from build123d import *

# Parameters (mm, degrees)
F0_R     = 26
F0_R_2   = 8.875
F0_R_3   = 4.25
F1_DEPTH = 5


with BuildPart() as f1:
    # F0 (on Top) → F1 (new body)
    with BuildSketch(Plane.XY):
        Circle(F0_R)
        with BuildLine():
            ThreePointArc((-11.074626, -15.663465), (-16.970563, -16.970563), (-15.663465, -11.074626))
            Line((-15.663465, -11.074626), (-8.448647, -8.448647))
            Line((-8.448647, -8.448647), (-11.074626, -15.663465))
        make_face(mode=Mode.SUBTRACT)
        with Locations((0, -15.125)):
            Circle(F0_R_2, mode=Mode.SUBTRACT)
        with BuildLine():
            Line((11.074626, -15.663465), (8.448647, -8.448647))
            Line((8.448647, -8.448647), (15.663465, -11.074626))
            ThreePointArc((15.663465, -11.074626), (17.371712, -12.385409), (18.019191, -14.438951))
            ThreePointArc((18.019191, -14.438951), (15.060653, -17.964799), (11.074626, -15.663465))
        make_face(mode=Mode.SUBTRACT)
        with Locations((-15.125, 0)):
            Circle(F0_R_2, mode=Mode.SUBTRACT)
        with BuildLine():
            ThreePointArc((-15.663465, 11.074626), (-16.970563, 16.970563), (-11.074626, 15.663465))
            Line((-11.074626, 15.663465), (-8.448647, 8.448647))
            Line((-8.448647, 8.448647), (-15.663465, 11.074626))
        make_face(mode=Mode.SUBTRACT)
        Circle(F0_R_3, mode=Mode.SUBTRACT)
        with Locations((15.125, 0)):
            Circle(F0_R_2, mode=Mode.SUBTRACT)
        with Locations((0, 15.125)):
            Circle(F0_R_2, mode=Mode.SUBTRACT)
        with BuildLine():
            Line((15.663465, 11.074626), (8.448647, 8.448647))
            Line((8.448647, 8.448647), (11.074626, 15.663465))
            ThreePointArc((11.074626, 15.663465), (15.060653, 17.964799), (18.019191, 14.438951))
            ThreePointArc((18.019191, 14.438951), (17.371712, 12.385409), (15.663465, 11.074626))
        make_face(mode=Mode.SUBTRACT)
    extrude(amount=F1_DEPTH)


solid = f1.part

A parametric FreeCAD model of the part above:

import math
import FreeCAD as App
import Part
import Sketcher
Q = App.Units.Quantity

doc = App.newDocument("Part")
body = doc.addObject("PartDesign::Body", "Body")

# Sketch on XY plane
sketch1 = doc.addObject("Sketcher::SketchObject", "Sketch")
body.addObject(sketch1)
sketch1.AttachmentSupport = (doc.XY_Plane, [""])
sketch1.MapMode = "FlatFace"
sketch1.addGeometry([
    Part.Circle(App.Vector(0, 0, 0), App.Vector(0, 0, 1), 26),  # 0
    Part.LineSegment(App.Vector(-8.4, -8.4, 0), App.Vector(-11.1, -15.7, 0)),  # 1
    Part.ArcOfCircle(Part.Circle(App.Vector(-14.4, -14.4, 0), App.Vector(0, 0, 1), 3.6), math.radians(110), math.radians(340)),  # 2
    Part.LineSegment(App.Vector(-15.7, -11.1, 0), App.Vector(-8.4, -8.4, 0)),  # 3
    Part.Circle(App.Vector(0, -15.1, 0), App.Vector(0, 0, 1), 8.9),  # 4
    Part.ArcOfCircle(Part.Circle(App.Vector(14.4, -14.4, 0), App.Vector(0, 0, 1), 3.6), math.radians(-160), math.radians(0)),  # 5
    Part.LineSegment(App.Vector(11.1, -15.7, 0), App.Vector(8.4, -8.4, 0)),  # 6
    Part.LineSegment(App.Vector(8.4, -8.4, 0), App.Vector(15.7, -11.1, 0)),  # 7
    Part.ArcOfCircle(Part.Circle(App.Vector(14.4, -14.4, 0), App.Vector(0, 0, 1), 3.6), math.radians(0), math.radians(70)),  # 8
    Part.Circle(App.Vector(0, 0, 0), App.Vector(0, 0, 1), 4.2),  # 9
    Part.Circle(App.Vector(-15.1, 0, 0), App.Vector(0, 0, 1), 8.9),  # 10
    Part.LineSegment(App.Vector(-8.4, 8.4, 0), App.Vector(-15.7, 11.1, 0)),  # 11
    Part.ArcOfCircle(Part.Circle(App.Vector(-14.4, 14.4, 0), App.Vector(0, 0, 1), 3.6), math.radians(20), math.radians(250)),  # 12
    Part.LineSegment(App.Vector(-11.1, 15.7, 0), App.Vector(-8.4, 8.4, 0)),  # 13
    Part.Circle(App.Vector(15.1, 0, 0), App.Vector(0, 0, 1), 8.9),  # 14
    Part.Circle(App.Vector(0, 15.1, 0), App.Vector(0, 0, 1), 8.9),  # 15
    Part.ArcOfCircle(Part.Circle(App.Vector(14.4, 14.4, 0), App.Vector(0, 0, 1), 3.6), math.radians(-70), math.radians(0)),  # 16
    Part.LineSegment(App.Vector(15.7, 11.1, 0), App.Vector(8.4, 8.4, 0)),  # 17
    Part.LineSegment(App.Vector(8.4, 8.4, 0), App.Vector(11.1, 15.7, 0)),  # 18
    Part.ArcOfCircle(Part.Circle(App.Vector(14.4, 14.4, 0), App.Vector(0, 0, 1), 3.6), math.radians(0), math.radians(160)),  # 19
], False)
sketch1.addConstraint([
    Sketcher.Constraint("Tangent", 1, 2, 2, 2),
    Sketcher.Constraint("Tangent", 2, 1, 3, 1),
    Sketcher.Constraint("Coincident", 3, 2, 1, 1),
    Sketcher.Constraint("Tangent", 5, 1, 6, 1),
    Sketcher.Constraint("Coincident", 6, 2, 7, 1),
    Sketcher.Constraint("Tangent", 7, 2, 8, 2),
    Sketcher.Constraint("Tangent", 8, 1, 5, 2),
    Sketcher.Constraint("Tangent", 11, 2, 12, 2),
    Sketcher.Constraint("Tangent", 12, 1, 13, 1),
    Sketcher.Constraint("Coincident", 13, 2, 11, 1),
    Sketcher.Constraint("Tangent", 16, 1, 17, 1),
    Sketcher.Constraint("Coincident", 17, 2, 18, 1),
    Sketcher.Constraint("Tangent", 18, 2, 19, 2),
    Sketcher.Constraint("Tangent", 19, 1, 16, 2),
    Sketcher.Constraint("Coincident", 0, 3, -1, 1),
    Sketcher.Constraint("Coincident", 9, 3, -1, 1),
    Sketcher.Constraint("Equal", 2, 5),
    Sketcher.Constraint("Equal", 4, 10),
    Sketcher.Constraint("Equal", 5, 12),
    Sketcher.Constraint("Equal", 10, 14),
    Sketcher.Constraint("Equal", 14, 15),
    Sketcher.Constraint("Equal", 8, 16),
    Sketcher.Constraint("Equal", 12, 19),
    Sketcher.Constraint("Symmetric", 5, 3, 12, 3, -1, 1),
    Sketcher.Constraint("Symmetric", 10, 3, 14, 3, -1, 1),
    Sketcher.Constraint("Symmetric", 4, 3, 15, 3, -1, 1),
    Sketcher.Constraint("Symmetric", 2, 3, 16, 3, -1, 1),
    Sketcher.Constraint("Symmetric", 7, 2, 11, 2, -1, 1),
    Sketcher.Constraint("Symmetric", 3, 2, 17, 2, -1, 1),
    Sketcher.Constraint("Symmetric", 2, 3, 5, 3, -2),
    Sketcher.Constraint("Symmetric", 3, 2, 6, 2, -2),
    Sketcher.Constraint("PointOnObject", 4, 3, -2),
    Sketcher.Constraint("PointOnObject", 10, 3, -1),
    Sketcher.Constraint("Perpendicular", 3, 6),
    Sketcher.Constraint("Parallel", 6, 13),
    Sketcher.Constraint("Horizontal", 5, 3, 8, 1),
    Sketcher.Constraint("Horizontal", 16, 3, 19, 1),
    Sketcher.Constraint("Diameter", 0, 52.0),
    Sketcher.Constraint("Diameter", 9, 8.5),
    Sketcher.Constraint("Diameter", 4, 17.75),
    Sketcher.Constraint("Angle", 1, Q("-110 deg")),
    Sketcher.Constraint("Radius", 2, 3.58024),
    Sketcher.Constraint("DistanceY", 4, 3, -1, 1, 15.125),
    Sketcher.Constraint("DistanceX", 10, 3, -1, 1, 15.125),
    Sketcher.Constraint("DistanceY", 8, 3, 16, 3, 28.877899),
    Sketcher.Constraint("DistanceX", 2, 3, -1, 1, 14.438951),
])
pad1 = doc.addObject("PartDesign::Pad", "Pad")
body.addObject(pad1)
pad1.Profile = sketch1
pad1.Length = 5

doc.recompute()
